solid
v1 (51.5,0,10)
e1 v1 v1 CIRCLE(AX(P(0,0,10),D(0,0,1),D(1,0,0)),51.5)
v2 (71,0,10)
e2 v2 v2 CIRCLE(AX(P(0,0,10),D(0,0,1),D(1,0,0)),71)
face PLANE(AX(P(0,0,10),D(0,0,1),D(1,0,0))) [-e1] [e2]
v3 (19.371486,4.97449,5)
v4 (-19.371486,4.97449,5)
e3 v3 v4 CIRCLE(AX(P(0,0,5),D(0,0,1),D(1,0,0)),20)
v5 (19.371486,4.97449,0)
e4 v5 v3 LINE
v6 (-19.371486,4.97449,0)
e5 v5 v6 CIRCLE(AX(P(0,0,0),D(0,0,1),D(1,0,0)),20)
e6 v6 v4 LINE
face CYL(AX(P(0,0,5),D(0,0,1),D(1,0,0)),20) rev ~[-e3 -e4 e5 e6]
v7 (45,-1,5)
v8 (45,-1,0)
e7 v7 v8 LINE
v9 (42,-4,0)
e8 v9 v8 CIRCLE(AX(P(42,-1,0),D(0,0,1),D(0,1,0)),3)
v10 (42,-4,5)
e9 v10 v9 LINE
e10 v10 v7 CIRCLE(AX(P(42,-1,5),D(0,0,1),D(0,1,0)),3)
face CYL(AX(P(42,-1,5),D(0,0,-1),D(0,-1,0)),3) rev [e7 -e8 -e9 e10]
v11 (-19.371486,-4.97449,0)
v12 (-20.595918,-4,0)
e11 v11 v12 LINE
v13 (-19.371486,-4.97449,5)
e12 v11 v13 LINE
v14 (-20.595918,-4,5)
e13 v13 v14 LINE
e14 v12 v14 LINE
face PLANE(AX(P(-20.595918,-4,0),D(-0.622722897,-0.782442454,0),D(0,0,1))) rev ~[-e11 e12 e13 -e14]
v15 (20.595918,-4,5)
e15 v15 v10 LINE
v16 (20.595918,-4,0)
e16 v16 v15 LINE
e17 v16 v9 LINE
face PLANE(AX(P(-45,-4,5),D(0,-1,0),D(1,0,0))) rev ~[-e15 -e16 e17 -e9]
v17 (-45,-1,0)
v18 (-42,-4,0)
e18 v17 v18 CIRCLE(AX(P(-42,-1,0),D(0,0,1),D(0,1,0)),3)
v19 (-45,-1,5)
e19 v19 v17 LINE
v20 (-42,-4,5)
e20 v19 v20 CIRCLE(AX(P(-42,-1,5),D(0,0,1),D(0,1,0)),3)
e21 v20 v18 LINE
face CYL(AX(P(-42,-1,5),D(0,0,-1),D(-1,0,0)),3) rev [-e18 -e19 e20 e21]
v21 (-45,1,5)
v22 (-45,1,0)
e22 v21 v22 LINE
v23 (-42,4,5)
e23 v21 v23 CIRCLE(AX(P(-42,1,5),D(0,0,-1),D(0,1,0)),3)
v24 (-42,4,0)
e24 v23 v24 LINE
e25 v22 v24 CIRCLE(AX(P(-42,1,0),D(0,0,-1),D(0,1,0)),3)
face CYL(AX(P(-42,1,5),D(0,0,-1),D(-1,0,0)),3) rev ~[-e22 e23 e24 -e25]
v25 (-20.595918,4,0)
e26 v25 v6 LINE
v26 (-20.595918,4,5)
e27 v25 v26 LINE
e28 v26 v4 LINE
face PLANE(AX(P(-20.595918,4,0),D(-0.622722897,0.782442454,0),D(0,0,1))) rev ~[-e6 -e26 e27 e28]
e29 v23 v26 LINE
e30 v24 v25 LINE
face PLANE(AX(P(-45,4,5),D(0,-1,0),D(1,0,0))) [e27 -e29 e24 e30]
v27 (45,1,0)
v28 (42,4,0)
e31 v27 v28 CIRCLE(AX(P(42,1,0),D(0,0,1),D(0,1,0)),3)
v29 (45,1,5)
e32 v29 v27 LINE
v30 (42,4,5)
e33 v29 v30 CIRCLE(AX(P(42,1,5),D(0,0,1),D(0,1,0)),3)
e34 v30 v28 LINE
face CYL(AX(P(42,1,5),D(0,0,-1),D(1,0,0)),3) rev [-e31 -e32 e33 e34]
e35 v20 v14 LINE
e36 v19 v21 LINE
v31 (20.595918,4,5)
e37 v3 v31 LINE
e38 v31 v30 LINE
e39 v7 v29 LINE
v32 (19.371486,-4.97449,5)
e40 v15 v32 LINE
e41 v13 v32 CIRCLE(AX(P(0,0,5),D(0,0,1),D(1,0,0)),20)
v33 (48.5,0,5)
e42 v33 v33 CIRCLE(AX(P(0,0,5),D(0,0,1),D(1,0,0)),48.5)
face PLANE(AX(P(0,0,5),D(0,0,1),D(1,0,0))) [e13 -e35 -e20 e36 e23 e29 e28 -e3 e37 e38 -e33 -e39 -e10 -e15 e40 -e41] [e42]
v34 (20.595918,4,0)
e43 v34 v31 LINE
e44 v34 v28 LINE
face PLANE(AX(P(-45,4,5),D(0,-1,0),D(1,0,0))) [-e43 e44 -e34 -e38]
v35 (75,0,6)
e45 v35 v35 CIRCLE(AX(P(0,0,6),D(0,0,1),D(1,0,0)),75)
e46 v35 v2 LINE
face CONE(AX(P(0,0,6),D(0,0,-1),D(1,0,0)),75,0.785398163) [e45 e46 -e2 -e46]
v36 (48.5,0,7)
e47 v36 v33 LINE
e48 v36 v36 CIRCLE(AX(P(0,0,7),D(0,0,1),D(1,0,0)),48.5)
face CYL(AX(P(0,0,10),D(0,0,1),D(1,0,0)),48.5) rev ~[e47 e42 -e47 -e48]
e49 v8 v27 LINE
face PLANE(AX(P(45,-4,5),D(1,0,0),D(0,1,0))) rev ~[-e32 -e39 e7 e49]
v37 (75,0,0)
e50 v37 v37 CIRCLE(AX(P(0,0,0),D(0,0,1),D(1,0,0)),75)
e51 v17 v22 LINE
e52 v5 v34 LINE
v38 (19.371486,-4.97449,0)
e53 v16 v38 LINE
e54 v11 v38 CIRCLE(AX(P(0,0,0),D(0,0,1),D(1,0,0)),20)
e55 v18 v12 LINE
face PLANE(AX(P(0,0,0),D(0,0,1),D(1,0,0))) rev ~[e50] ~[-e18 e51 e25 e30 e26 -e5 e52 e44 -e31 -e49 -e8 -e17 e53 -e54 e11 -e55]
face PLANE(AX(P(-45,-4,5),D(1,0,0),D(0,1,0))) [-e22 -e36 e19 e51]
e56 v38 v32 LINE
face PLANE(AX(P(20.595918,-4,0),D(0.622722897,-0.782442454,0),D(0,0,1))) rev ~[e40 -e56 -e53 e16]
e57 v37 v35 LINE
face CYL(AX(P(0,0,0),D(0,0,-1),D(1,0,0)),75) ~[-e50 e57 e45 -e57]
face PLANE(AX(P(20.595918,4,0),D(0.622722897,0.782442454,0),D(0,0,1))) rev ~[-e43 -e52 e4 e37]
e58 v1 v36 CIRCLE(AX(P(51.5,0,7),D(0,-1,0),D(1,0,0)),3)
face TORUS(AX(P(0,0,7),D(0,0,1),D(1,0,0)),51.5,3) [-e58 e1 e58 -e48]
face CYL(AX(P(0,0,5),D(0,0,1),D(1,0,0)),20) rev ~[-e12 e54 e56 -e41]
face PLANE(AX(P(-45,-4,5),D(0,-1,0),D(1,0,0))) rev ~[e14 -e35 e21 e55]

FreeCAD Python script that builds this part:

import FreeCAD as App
import Part
import Sketcher

V = App.Vector


def edges_at(feature, points):
    """Names of the edges that pass closest to the given points."""
    edges = feature.Shape.Edges
    near = lambda p: min(range(len(edges)), key=lambda i: edges[i].distToShape(Part.Vertex(*p))[0])
    return sorted({f"Edge{near(p) + 1}" for p in points})


def add_polygon(sketch, points):
    """Adds a closed chain of lines whose ends are joined by coincident constraints."""
    first, n = sketch.GeometryCount, len(points)
    for a, b in zip(points, points[1:] + points[:1]):
        sketch.addGeometry(Part.LineSegment(App.Vector(*a, 0), App.Vector(*b, 0)), False)
    for i in range(n):
        sketch.addConstraint(Sketcher.Constraint("Coincident", first + i, 2, first + (i + 1) % n, 1))

doc = App.newDocument("Part")
params = doc.addObject("Spreadsheet::Sheet", "Params")
for row, (alias, value) in enumerate([
    ("sketch1_diameter", "150 mm"),
    ("pad1_length", "10 mm"),
    ("sketch2_diameter", "97 mm"),
    ("pocket1_length", "5 mm"),
    ("sketch3_diameter", "40 mm"),
    ("pocket2_length", "5 mm"),
    ("sketch4_width", "90 mm"),
    ("sketch4_height", "8 mm"),
    ("pocket3_length", "5 mm"),
    ("chamfer_size", "4 mm"),
    ("fillet_radius", "3 mm"),
    ("fillet2_radius", "3 mm"),
    ("fillet3_radius", "3 mm"),
    ("fillet4_radius", "3 mm"),
    ("fillet5_radius", "3 mm"),
    ("chamfer2_size", "1 mm"),
    ("chamfer3_size", "1 mm"),
    ("chamfer4_size", "1 mm"),
    ("chamfer5_size", "1 mm"),
], start=1):
    params.set(f"A{row}", alias)
    params.set(f"B{row}", "=" + value)
    params.setAlias(f"B{row}", alias)

body = doc.addObject("PartDesign::Body", "Body")

# Sketch on XY plane
sketch1 = body.newObject("Sketcher::SketchObject", "Sketch")
sketch1.AttachmentSupport = (doc.getObject("XY_Plane"), [""])
sketch1.MapMode = "FlatFace"
sketch1.addGeometry(Part.Circle(V(0, 0, 0), V(0, 0, 1), 75), False)
sketch1.addConstraint(Sketcher.Constraint("Coincident", 0, 3, -1, 1))
sketch1.addConstraint(Sketcher.Constraint("Diameter", 0, 150.0))
sketch1.setExpression("Constraints[1]", "Params.sketch1_diameter")
pad1 = body.newObject("PartDesign::Pad", "Pad")
pad1.Profile = sketch1
pad1.setExpression("Length", "Params.pad1_length")

# Sketch on XY plane
sketch2 = body.newObject("Sketcher::SketchObject", "Sketch001")
sketch2.AttachmentSupport = (doc.getObject("XY_Plane"), [""])
sketch2.MapMode = "FlatFace"
sketch2.AttachmentOffset = App.Placement(V(0, 0, 10), App.Rotation())
sketch2.addGeometry(Part.Circle(V(0, 0, 0), V(0, 0, 1), 48), False)
sketch2.addConstraint(Sketcher.Constraint("Coincident", 0, 3, -1, 1))
sketch2.addConstraint(Sketcher.Constraint("Diameter", 0, 97.0))
sketch2.setExpression("Constraints[1]", "Params.sketch2_diameter")
pocket1 = body.newObject("PartDesign::Pocket", "Pocket")
pocket1.Profile = sketch2
pocket1.setExpression("Length", "Params.pocket1_length")

# Sketch on XY plane
sketch3 = body.newObject("Sketcher::SketchObject", "Sketch002")
sketch3.AttachmentSupport = (doc.getObject("XY_Plane"), [""])
sketch3.MapMode = "FlatFace"
sketch3.AttachmentOffset = App.Placement(V(0, 0, 5), App.Rotation())
sketch3.addGeometry(Part.Circle(V(0, 0, 0), V(0, 0, 1), 20), False)
sketch3.addConstraint(Sketcher.Constraint("Coincident", 0, 3, -1, 1))
sketch3.addConstraint(Sketcher.Constraint("Diameter", 0, 40.0))
sketch3.setExpression("Constraints[1]", "Params.sketch3_diameter")
pocket2 = body.newObject("PartDesign::Pocket", "Pocket001")
pocket2.Profile = sketch3
pocket2.setExpression("Length", "Params.pocket2_length")

# Sketch on XY plane
sketch4 = body.newObject("Sketcher::SketchObject", "Sketch003")
sketch4.AttachmentSupport = (doc.getObject("XY_Plane"), [""])
sketch4.MapMode = "FlatFace"
sketch4.AttachmentOffset = App.Placement(V(0, 0, 5), App.Rotation())
add_polygon(sketch4, [(-45, 4), (-45, -4), (45, -4), (45, 4)])  # lines 0-3
sketch4.addConstraint(Sketcher.Constraint("Vertical", 0))
sketch4.addConstraint(Sketcher.Constraint("Horizontal", 1))
sketch4.addConstraint(Sketcher.Constraint("Vertical", 2))
sketch4.addConstraint(Sketcher.Constraint("Horizontal", 3))
sketch4.addConstraint(Sketcher.Constraint("Symmetric", 0, 2, 2, 2, -1, 1))
sketch4.addConstraint(Sketcher.Constraint("DistanceX", 1, 1, 1, 2, 90.0))
sketch4.addConstraint(Sketcher.Constraint("DistanceY", 0, 2, 0, 1, 8.0))
sketch4.setExpression("Constraints[9]", "Params.sketch4_width")
sketch4.setExpression("Constraints[10]", "Params.sketch4_height")
pocket3 = body.newObject("PartDesign::Pocket", "Pocket002")
pocket3.Profile = sketch4
pocket3.setExpression("Length", "Params.pocket3_length")
doc.recompute()

chamfer = body.newObject("PartDesign::Chamfer", "Chamfer")
chamfer.Base = (pocket3, edges_at(pocket3, [(-75, 0, 10)]))
chamfer.setExpression("Size", "Params.chamfer_size")
doc.recompute()

fillet = body.newObject("PartDesign::Fillet", "Fillet")
fillet.Base = (chamfer, edges_at(chamfer, [(-48.5, 0, 10)]))
fillet.setExpression("Radius", "Params.fillet_radius")
doc.recompute()

fillet2 = body.newObject("PartDesign::Fillet", "Fillet001")
fillet2.Base = (fillet, edges_at(fillet, [(-45, -4, 2.5)]))
fillet2.setExpression("Radius", "Params.fillet2_radius")
doc.recompute()

fillet3 = body.newObject("PartDesign::Fillet", "Fillet002")
fillet3.Base = (fillet2, edges_at(fillet2, [(-45, 4, 2.5)]))
fillet3.setExpression("Radius", "Params.fillet3_radius")
doc.recompute()

fillet4 = body.newObject("PartDesign::Fillet", "Fillet003")
fillet4.Base = (fillet3, edges_at(fillet3, [(45, -4, 2.5)]))
fillet4.setExpression("Radius", "Params.fillet4_radius")
doc.recompute()

fillet5 = body.newObject("PartDesign::Fillet", "Fillet004")
fillet5.Base = (fillet4, edges_at(fillet4, [(45, 4, 2.5)]))
fillet5.setExpression("Radius", "Params.fillet5_radius")
doc.recompute()

chamfer2 = body.newObject("PartDesign::Chamfer", "Chamfer001")
chamfer2.Base = (fillet5, edges_at(fillet5, [(19.596, -4, 2.5)]))
chamfer2.setExpression("Size", "Params.chamfer2_size")
doc.recompute()

chamfer3 = body.newObject("PartDesign::Chamfer", "Chamfer002")
chamfer3.Base = (chamfer2, edges_at(chamfer2, [(-19.596, -4, 2.5)]))
chamfer3.setExpression("Size", "Params.chamfer3_size")
doc.recompute()

chamfer4 = body.newObject("PartDesign::Chamfer", "Chamfer003")
chamfer4.Base = (chamfer3, edges_at(chamfer3, [(-19.596, 4, 2.5)]))
chamfer4.setExpression("Size", "Params.chamfer4_size")
doc.recompute()

chamfer5 = body.newObject("PartDesign::Chamfer", "Chamfer004")
chamfer5.Base = (chamfer4, edges_at(chamfer4, [(19.596, 4, 2.5)]))
chamfer5.setExpression("Size", "Params.chamfer5_size")

doc.recompute()
